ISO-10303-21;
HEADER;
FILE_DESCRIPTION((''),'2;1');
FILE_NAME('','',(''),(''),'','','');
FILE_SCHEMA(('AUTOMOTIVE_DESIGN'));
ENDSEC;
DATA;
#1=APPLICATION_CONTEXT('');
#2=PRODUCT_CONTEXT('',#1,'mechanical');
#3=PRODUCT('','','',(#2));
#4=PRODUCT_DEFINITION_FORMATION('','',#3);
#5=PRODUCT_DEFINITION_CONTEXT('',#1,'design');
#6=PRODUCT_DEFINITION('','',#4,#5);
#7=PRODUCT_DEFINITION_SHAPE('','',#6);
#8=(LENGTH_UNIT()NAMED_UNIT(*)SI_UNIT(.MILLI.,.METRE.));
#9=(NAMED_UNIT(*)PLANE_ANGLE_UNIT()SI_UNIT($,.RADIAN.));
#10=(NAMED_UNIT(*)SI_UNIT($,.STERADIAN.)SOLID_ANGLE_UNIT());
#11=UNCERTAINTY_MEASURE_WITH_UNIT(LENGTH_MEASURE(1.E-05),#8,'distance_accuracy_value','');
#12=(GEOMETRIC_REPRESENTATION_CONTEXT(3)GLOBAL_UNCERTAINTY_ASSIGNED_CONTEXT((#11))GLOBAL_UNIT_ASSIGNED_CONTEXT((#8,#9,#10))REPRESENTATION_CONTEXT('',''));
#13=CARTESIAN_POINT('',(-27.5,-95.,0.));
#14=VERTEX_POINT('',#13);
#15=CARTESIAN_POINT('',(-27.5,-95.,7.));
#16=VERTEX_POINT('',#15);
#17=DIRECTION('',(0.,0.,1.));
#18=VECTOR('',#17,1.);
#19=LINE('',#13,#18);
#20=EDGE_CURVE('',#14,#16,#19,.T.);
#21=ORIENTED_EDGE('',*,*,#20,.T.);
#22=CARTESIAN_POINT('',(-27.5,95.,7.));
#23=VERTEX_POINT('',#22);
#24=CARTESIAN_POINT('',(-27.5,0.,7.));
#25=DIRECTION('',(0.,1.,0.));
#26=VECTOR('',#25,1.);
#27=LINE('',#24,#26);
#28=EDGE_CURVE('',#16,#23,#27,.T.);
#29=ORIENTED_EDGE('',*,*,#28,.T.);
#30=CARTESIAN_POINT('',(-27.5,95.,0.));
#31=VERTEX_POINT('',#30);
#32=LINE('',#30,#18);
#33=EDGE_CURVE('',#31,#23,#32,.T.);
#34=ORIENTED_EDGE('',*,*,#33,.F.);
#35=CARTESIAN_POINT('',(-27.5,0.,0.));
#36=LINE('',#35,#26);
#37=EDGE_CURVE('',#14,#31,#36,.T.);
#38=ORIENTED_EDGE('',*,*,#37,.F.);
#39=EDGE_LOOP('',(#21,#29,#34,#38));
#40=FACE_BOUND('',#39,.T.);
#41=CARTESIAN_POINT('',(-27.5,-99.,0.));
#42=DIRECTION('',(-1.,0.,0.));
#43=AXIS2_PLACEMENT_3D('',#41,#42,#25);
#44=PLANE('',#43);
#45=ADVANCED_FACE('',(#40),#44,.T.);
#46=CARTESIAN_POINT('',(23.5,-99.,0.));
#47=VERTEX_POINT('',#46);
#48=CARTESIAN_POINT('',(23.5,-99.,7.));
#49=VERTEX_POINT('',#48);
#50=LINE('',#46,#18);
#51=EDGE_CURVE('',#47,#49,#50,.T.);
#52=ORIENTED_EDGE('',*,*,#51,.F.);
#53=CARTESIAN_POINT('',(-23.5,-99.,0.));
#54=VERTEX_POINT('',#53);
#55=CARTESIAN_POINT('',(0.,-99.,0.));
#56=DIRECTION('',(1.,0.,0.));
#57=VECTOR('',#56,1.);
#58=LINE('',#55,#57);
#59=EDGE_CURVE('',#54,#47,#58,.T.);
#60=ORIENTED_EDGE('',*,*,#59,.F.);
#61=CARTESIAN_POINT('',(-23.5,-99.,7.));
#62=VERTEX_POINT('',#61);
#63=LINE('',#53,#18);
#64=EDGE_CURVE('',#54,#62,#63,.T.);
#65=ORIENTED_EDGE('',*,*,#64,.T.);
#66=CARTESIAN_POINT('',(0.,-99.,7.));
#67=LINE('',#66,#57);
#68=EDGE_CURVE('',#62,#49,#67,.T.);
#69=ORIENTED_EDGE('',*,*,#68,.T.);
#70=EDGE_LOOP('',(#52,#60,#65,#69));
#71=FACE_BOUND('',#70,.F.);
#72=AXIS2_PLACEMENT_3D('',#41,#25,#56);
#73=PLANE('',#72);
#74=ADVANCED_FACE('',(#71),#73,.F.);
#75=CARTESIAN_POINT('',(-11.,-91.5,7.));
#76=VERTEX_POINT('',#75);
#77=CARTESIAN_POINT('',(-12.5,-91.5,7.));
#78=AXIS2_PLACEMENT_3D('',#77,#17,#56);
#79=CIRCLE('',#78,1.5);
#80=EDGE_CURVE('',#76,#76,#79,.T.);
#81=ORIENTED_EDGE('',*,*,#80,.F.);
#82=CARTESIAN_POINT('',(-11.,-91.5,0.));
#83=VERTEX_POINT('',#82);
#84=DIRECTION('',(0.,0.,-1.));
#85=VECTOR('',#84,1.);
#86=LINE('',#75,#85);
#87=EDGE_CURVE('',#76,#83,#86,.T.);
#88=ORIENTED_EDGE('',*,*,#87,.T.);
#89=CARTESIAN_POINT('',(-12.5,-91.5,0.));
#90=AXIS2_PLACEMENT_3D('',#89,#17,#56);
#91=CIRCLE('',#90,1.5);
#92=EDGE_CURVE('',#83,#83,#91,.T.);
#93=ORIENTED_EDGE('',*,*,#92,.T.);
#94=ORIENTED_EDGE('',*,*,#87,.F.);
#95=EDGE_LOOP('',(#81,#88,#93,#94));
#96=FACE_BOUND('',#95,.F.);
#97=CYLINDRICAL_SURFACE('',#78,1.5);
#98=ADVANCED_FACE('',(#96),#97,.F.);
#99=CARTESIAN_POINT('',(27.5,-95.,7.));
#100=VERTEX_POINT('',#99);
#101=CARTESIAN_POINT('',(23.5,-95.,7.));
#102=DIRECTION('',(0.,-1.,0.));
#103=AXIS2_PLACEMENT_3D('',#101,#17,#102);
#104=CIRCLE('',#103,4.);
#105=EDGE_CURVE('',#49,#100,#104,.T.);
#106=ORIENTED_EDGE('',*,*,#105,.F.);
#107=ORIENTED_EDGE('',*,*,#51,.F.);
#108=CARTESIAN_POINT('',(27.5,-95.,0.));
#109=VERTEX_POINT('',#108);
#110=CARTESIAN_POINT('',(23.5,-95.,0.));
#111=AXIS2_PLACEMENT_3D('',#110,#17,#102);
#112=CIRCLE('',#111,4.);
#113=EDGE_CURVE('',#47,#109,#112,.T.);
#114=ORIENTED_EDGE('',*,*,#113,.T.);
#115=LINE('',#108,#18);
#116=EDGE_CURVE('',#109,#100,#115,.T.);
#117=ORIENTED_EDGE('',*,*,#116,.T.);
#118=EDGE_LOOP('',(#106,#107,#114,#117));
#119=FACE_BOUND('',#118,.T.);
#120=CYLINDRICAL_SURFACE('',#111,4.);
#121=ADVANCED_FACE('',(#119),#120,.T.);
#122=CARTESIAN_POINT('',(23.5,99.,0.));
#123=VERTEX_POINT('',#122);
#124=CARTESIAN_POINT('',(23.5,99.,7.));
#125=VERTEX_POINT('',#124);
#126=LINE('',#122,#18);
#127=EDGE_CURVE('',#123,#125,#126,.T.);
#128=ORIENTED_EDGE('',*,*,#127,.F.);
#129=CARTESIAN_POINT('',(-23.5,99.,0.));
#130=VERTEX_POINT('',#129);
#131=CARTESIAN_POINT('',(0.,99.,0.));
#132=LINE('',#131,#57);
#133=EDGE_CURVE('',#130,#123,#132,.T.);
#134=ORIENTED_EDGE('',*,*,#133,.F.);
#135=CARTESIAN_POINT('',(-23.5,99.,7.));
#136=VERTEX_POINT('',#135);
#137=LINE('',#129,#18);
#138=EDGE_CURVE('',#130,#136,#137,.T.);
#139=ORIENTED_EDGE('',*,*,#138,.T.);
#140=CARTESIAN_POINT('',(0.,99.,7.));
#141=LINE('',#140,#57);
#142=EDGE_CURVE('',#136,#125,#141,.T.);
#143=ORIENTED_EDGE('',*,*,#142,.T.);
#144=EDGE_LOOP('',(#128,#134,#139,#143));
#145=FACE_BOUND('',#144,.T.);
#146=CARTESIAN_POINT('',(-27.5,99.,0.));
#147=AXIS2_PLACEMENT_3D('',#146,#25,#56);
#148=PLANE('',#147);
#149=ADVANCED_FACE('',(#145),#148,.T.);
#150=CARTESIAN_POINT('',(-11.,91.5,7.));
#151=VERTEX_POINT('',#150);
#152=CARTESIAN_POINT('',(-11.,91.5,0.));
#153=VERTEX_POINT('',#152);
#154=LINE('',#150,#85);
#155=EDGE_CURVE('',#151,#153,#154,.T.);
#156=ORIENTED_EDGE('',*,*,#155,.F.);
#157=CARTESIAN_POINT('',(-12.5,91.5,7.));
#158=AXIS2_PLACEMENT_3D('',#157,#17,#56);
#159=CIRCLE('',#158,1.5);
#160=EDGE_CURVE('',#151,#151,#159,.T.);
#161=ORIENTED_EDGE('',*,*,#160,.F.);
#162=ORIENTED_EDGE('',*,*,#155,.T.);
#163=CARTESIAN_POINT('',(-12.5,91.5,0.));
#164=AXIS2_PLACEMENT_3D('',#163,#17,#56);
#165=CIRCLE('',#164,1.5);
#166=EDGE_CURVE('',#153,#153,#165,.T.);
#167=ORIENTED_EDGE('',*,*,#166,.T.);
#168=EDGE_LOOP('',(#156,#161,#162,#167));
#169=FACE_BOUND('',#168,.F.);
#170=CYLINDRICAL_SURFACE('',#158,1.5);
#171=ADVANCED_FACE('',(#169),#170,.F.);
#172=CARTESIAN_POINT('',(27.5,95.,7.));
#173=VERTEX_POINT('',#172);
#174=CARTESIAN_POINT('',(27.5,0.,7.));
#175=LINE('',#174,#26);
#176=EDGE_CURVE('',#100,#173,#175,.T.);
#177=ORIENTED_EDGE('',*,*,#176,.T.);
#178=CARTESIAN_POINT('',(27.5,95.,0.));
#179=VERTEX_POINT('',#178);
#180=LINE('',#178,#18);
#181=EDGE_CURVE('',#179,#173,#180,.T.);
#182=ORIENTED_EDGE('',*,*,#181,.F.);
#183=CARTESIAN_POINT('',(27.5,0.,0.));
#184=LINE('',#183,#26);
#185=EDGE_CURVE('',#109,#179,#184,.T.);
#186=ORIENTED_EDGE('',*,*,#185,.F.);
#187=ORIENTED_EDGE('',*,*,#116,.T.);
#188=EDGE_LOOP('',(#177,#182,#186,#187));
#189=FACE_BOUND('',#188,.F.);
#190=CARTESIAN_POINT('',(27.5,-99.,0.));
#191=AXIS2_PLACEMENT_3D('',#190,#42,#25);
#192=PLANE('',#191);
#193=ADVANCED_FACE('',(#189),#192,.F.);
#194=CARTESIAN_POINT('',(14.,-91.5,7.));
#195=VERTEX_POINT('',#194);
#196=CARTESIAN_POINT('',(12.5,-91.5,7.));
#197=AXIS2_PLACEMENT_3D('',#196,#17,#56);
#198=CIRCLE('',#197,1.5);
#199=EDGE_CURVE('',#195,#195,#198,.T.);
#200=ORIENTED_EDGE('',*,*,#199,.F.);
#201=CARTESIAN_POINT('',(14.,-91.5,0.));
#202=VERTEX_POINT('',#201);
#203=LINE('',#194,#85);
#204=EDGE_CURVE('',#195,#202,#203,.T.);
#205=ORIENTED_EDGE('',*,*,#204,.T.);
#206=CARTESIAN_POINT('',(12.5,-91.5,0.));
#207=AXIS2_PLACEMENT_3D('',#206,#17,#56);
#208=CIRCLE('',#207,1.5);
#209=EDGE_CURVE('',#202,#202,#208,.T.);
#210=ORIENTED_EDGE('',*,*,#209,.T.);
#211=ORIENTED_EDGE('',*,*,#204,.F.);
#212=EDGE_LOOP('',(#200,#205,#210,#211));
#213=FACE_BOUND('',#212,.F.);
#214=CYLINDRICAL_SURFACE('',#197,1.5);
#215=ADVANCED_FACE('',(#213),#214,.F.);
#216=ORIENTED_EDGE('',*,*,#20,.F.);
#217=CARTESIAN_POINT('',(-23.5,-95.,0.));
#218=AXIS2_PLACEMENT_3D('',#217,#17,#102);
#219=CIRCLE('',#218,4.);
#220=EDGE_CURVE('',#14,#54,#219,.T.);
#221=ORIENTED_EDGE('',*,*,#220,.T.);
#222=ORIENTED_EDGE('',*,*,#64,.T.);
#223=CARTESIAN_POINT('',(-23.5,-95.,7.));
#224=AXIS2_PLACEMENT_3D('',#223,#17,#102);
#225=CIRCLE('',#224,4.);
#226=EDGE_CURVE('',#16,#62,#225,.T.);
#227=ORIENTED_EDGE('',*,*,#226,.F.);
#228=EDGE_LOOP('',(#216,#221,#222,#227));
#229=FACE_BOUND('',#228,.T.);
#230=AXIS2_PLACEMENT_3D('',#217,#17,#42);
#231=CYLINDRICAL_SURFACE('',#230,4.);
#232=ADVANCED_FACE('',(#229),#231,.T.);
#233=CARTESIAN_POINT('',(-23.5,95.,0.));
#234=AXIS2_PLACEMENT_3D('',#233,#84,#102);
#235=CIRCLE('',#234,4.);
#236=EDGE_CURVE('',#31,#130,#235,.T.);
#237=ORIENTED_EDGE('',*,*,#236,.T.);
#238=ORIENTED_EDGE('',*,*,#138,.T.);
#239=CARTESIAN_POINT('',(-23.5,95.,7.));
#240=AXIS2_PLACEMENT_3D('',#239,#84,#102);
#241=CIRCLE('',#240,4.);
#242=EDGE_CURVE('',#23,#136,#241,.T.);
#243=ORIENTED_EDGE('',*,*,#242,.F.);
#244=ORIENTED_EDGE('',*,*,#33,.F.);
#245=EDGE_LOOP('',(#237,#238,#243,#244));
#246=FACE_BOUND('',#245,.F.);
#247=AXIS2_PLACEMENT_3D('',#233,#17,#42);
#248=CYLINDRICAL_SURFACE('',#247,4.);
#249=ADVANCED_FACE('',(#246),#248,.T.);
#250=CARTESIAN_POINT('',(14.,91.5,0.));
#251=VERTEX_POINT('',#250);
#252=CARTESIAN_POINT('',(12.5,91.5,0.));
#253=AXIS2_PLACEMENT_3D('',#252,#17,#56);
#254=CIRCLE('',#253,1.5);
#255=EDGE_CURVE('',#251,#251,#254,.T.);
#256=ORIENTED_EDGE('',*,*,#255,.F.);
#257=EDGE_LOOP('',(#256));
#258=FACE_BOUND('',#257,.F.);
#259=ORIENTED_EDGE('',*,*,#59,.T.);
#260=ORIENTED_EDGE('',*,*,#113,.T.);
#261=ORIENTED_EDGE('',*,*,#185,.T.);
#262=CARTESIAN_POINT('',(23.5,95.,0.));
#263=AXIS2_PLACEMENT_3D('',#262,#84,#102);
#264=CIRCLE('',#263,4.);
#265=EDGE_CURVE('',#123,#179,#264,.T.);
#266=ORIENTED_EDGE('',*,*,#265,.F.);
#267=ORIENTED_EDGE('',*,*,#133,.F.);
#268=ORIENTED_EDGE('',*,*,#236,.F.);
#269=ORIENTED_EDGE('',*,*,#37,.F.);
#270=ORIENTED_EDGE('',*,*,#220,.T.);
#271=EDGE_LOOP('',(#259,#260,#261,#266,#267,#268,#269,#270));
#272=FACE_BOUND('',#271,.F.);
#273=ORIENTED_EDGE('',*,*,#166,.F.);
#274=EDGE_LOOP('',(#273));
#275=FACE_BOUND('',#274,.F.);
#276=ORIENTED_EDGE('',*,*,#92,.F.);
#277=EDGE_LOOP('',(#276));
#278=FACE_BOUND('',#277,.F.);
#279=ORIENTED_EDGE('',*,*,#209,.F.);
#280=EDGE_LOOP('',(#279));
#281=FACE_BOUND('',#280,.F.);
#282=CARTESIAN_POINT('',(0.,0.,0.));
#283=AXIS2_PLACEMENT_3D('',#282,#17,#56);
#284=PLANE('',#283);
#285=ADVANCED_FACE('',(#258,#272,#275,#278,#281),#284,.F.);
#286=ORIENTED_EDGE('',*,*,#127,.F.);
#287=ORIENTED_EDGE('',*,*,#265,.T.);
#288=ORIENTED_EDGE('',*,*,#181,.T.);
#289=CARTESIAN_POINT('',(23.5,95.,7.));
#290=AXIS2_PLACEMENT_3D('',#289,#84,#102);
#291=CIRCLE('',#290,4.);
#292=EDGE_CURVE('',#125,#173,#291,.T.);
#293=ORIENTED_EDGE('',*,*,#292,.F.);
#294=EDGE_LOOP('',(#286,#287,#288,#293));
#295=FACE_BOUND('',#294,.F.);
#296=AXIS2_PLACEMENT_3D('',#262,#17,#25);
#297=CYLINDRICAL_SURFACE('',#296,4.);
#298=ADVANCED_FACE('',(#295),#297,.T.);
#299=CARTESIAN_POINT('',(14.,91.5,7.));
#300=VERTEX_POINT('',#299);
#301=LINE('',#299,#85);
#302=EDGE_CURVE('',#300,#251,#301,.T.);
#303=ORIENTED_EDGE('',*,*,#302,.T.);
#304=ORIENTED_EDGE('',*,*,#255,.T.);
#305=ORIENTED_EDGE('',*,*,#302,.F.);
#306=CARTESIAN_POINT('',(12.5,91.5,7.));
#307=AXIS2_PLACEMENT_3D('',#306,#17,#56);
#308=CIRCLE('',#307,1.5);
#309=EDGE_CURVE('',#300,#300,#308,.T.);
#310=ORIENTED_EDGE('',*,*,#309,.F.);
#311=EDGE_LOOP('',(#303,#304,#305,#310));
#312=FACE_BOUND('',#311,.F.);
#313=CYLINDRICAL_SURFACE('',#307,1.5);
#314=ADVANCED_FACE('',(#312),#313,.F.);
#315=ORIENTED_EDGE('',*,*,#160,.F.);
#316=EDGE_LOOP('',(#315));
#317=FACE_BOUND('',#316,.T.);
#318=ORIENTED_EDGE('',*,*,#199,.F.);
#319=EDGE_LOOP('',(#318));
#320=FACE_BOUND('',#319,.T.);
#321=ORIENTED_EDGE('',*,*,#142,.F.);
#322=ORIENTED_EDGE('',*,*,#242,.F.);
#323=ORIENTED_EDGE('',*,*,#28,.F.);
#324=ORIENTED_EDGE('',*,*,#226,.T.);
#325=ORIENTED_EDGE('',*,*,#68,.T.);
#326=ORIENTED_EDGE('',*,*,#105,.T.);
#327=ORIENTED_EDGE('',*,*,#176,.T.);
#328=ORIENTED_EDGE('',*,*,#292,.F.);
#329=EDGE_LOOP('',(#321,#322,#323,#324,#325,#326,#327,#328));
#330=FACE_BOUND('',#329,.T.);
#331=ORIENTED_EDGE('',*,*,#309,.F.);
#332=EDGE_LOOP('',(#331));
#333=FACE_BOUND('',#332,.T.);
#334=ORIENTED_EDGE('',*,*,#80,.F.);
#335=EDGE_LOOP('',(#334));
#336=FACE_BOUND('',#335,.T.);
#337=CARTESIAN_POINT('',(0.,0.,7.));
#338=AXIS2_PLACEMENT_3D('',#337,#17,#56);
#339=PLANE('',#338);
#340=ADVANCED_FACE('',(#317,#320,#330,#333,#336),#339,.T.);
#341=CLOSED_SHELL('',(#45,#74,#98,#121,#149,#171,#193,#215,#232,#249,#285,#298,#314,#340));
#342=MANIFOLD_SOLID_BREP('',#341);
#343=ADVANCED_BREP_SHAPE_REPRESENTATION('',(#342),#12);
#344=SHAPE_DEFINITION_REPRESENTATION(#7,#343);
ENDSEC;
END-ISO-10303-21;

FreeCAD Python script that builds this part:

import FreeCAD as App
import Part
import Sketcher

V = App.Vector
Q = App.Units.Quantity


def edges_at(feature, points):
    """Names of the edges that pass closest to the given points."""
    edges = feature.Shape.Edges
    near = lambda p: min(range(len(edges)), key=lambda i: edges[i].distToShape(Part.Vertex(*p))[0])
    return sorted({f"Edge{near(p) + 1}" for p in points})


def add_polygon(sketch, points):
    """Adds a closed chain of lines whose ends are joined by coincident constraints."""
    first, n = sketch.GeometryCount, len(points)
    for a, b in zip(points, points[1:] + points[:1]):
        sketch.addGeometry(Part.LineSegment(App.Vector(*a, 0), App.Vector(*b, 0)), False)
    for i in range(n):
        sketch.addConstraint(Sketcher.Constraint("Coincident", first + i, 2, first + (i + 1) % n, 1))

doc = App.newDocument("Part")
body = doc.addObject("PartDesign::Body", "Body")

sketch1 = body.newObject("Sketcher::SketchObject", "Sketch")
sketch1.AttachmentSupport = (doc.getObject("XY_Plane"), [""])
sketch1.MapMode = "FlatFace"
add_polygon(sketch1, [(-28, 99), (-28, -99), (28, -99), (28, 99)])
sketch1.addConstraint(Sketcher.Constraint("Vertical", 0))
sketch1.addConstraint(Sketcher.Constraint("Horizontal", 1))
sketch1.addConstraint(Sketcher.Constraint("Vertical", 2))
sketch1.addConstraint(Sketcher.Constraint("Horizontal", 3))
sketch1.addConstraint(Sketcher.Constraint("Symmetric", 0, 2, 2, 2, -1, 1))
sketch1.addConstraint(Sketcher.Constraint("DistanceX", 1, 1, 1, 2, Q("55 mm")))
sketch1.addConstraint(Sketcher.Constraint("DistanceY", 0, 2, 0, 1, Q("198 mm")))
pad1 = body.newObject("PartDesign::Pad", "Pad")
pad1.Profile = sketch1
pad1.Length = 7

sketch2 = body.newObject("Sketcher::SketchObject", "Sketch001")
sketch2.AttachmentSupport = (doc.getObject("XY_Plane"), [""])
sketch2.MapMode = "FlatFace"
sketch2.AttachmentOffset = App.Placement(V(0, 0, 7), App.Rotation())
sketch2.addGeometry(Part.Circle(V(-12.5, 91.5, 0), V(0, 0, 1), 1.5), False)
sketch2.addGeometry(Part.Circle(V(12.5, 91.5, 0), V(0, 0, 1), 1.5), False)
sketch2.addGeometry(Part.Circle(V(-12.5, -91.5, 0), V(0, 0, 1), 1.5), False)
sketch2.addGeometry(Part.Circle(V(12.5, -91.5, 0), V(0, 0, 1), 1.5), False)
sketch2.addConstraint(Sketcher.Constraint("Equal", 0, 1))
sketch2.addConstraint(Sketcher.Constraint("Equal", 1, 2))
sketch2.addConstraint(Sketcher.Constraint("Equal", 2, 3))
sketch2.addConstraint(Sketcher.Constraint("Symmetric", 1, 3, 2, 3, -1, 1))
sketch2.addConstraint(Sketcher.Constraint("Symmetric", 0, 3, 3, 3, -1, 1))
sketch2.addConstraint(Sketcher.Constraint("Symmetric", 0, 3, 1, 3, -2))
sketch2.addConstraint(Sketcher.Constraint("Diameter", 0, Q("3 mm")))
sketch2.addConstraint(Sketcher.Constraint("DistanceX", 0, 3, 1, 3, Q("25 mm")))
sketch2.addConstraint(Sketcher.Constraint("DistanceY", 2, 3, 0, 3, Q("183 mm")))
pocket1 = body.newObject("PartDesign::Pocket", "Pocket")
pocket1.Profile = sketch2
pocket1.Type = "ThroughAll"
doc.recompute()

fillet = body.newObject("PartDesign::Fillet", "Fillet")
fillet.Base = (pocket1, edges_at(pocket1, [
    (-27.5, 99, 3.5),
    (-27.5, -99, 3.5),
    (27.5, -99, 3.5),
    (27.5, 99, 3.5),
]))
fillet.Radius = 4

doc.recompute()
